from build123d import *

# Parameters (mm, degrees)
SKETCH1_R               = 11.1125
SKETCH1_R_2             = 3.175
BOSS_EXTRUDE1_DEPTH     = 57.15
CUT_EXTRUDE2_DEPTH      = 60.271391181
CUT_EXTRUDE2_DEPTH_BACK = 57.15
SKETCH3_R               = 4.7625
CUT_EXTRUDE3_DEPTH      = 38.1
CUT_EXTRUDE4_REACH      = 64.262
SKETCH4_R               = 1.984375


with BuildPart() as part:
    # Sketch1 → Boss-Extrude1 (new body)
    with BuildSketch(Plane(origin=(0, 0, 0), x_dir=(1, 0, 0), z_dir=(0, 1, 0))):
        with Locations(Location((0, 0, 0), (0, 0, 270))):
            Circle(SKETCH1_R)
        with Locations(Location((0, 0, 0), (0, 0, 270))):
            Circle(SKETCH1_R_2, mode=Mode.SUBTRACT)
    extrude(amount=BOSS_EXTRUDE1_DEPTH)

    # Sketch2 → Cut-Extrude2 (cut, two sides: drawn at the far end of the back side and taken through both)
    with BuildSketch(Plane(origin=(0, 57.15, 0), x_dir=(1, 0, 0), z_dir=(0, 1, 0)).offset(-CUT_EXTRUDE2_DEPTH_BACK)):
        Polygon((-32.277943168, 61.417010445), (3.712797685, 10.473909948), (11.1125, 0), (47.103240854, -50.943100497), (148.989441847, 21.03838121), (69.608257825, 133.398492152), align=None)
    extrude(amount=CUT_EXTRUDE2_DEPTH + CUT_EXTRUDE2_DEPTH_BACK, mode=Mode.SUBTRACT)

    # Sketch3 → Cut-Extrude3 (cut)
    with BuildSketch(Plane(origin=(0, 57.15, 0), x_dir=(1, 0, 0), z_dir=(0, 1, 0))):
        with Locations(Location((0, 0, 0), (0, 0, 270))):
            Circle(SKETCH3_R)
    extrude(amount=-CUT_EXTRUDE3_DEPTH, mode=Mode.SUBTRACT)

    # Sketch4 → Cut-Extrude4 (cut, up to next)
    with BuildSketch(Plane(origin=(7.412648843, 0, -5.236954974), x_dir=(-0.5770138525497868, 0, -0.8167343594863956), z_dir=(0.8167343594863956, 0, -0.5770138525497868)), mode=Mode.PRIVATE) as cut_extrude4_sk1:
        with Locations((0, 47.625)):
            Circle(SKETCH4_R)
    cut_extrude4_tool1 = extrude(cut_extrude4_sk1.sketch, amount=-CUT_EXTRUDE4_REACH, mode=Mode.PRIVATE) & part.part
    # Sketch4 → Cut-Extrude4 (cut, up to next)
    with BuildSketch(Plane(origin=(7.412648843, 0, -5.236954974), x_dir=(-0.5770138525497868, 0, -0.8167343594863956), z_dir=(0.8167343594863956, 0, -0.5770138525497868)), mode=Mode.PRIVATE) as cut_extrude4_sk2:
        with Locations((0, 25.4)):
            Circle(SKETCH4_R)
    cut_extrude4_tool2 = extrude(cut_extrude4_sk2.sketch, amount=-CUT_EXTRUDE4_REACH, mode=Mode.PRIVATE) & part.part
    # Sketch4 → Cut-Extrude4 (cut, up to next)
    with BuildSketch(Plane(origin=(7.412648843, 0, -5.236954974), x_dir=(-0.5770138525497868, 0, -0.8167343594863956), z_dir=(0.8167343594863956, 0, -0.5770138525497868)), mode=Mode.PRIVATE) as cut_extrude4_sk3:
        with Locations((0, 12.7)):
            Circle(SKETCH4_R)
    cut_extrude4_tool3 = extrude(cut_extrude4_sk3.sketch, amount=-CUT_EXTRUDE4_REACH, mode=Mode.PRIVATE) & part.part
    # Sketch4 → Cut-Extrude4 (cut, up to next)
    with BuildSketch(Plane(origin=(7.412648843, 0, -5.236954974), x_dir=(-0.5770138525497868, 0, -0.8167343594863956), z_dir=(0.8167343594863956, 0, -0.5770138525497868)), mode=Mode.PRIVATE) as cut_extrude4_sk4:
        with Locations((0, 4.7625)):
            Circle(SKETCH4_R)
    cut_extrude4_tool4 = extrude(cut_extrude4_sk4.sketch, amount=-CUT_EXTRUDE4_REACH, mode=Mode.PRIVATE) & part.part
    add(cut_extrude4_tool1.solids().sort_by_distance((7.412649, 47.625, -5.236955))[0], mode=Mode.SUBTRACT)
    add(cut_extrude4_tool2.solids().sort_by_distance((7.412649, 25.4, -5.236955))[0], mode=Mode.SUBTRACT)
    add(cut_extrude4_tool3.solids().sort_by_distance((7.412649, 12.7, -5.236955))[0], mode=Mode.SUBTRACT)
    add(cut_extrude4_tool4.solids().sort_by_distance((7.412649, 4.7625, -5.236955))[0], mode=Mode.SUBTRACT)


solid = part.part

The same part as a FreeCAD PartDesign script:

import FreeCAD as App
import Part
import Sketcher
Q = App.Units.Quantity


def add_polygon(sketch, points):
    """Adds a closed chain of lines whose ends are joined by coincident constraints."""
    first, n = sketch.GeometryCount, len(points)
    for a, b in zip(points, points[1:] + points[:1]):
        sketch.addGeometry(Part.LineSegment(App.Vector(*a, 0), App.Vector(*b, 0)), False)
    for i in range(n):
        sketch.addConstraint(Sketcher.Constraint("Coincident", first + i, 2, first + (i + 1) % n, 1))

doc = App.newDocument("Part")
params = doc.addObject("Spreadsheet::Sheet", "Params")
for row, (alias, value) in enumerate([
    ("sketch1_diameter", "0.25 in"),
    ("sketch1_diameter2", "0.875 in"),
    ("pad1_length", "2.25 in"),
    ("sketch3_diameter", "0.375 in"),
    ("pocket2_length", "1.5 in"),
    ("sketch4_diameter", "0.15625 in"),
    ("pocket3_length", "4.746565 mm"),
    ("sketch5_diameter", "0.15625 in"),
    ("pocket4_length", "4.746565 mm"),
    ("sketch6_diameter", "0.15625 in"),
    ("sketch7_diameter", "0.15625 in"),
    ("pocket6_length", "6.597477 mm"),
], start=1):
    params.set(f"A{row}", alias)
    params.set(f"B{row}", "=" + value)
    params.setAlias(f"B{row}", alias)

body = doc.addObject("PartDesign::Body", "Body")

# Sketch on XZ plane
sketch1 = body.newObject("Sketcher::SketchObject", "Sketch")
sketch1.AttachmentSupport = (doc.getObject("XZ_Plane"), [""])
sketch1.MapMode = "FlatFace"
sketch1.addGeometry(Part.Circle(App.Vector(0, 0, 0), App.Vector(0, 0, 1), 11.1), False)
sketch1.addGeometry(Part.Circle(App.Vector(0, 0, 0), App.Vector(0, 0, 1), 3.2), False)
sketch1.addConstraint(Sketcher.Constraint("Coincident", 0, 3, -1, 1))
sketch1.addConstraint(Sketcher.Constraint("Coincident", 1, 3, -1, 1))
sketch1.addConstraint(Sketcher.Constraint("Diameter", 1, Q("0.25 in")))
sketch1.addConstraint(Sketcher.Constraint("Diameter", 0, Q("0.875 in")))
sketch1.setExpression("Constraints[2]", "Params.sketch1_diameter")
sketch1.setExpression("Constraints[3]", "Params.sketch1_diameter2")
pad1 = body.newObject("PartDesign::Pad", "Pad")
pad1.Profile = sketch1
pad1.setExpression("Length", "Params.pad1_length")
pad1.Reversed = True

# Sketch on XZ plane
sketch2 = body.newObject("Sketcher::SketchObject", "Sketch001")
sketch2.AttachmentSupport = (doc.getObject("XZ_Plane"), [""])
sketch2.MapMode = "FlatFace"
sketch2.AttachmentOffset = App.Placement(App.Vector(0, 0, -2.25 * 25.4), App.Rotation())
add_polygon(sketch2, [(-32, -61), (4, -10), (11, 0), (47, 51), (149, -21), (70, -133)])  # lines 0-5
sketch2.addConstraint(Sketcher.Constraint("PointOnObject", 1, 2, -1))
sketch2.addConstraint(Sketcher.Constraint("Parallel", 0, 1))
sketch2.addConstraint(Sketcher.Constraint("Parallel", 1, 2))
sketch2.addConstraint(Sketcher.Constraint("Perpendicular", 2, 3))
sketch2.addConstraint(Sketcher.Constraint("Perpendicular", 3, 4))
sketch2.addConstraint(Sketcher.Constraint("Perpendicular", 4, 5))
sketch2.addConstraint(Sketcher.Constraint("Equal", 0, 2))
sketch2.addConstraint(Sketcher.Constraint("DistanceX", -1, 1, 1, 2, Q("0.4375 in")))
sketch2.addConstraint(Sketcher.Constraint("DistanceY", -1, 1, 2, 2, Q("50.9431 mm")))
sketch2.addConstraint(Sketcher.Constraint("DistanceX", 2, 2, 3, 2, Q("101.886201 mm")))
sketch2.addConstraint(Sketcher.Constraint("DistanceY", 0, 2, -1, 1, Q("10.47391 mm")))
sketch2.addConstraint(Sketcher.Constraint("DistanceX", -1, 1, 2, 2, Q("47.103241 mm")))
pocket1 = body.newObject("PartDesign::Pocket", "Pocket")
pocket1.Profile = sketch2
pocket1.Type = "ThroughAll"
pocket1.Midplane = True

# Sketch on XZ plane
sketch3 = body.newObject("Sketcher::SketchObject", "Sketch002")
sketch3.AttachmentSupport = (doc.getObject("XZ_Plane"), [""])
sketch3.MapMode = "FlatFace"
sketch3.AttachmentOffset = App.Placement(App.Vector(0, 0, -2.25 * 25.4), App.Rotation())
sketch3.addGeometry(Part.Circle(App.Vector(0, 0, 0), App.Vector(0, 0, 1), 4.8), False)
sketch3.addConstraint(Sketcher.Constraint("Coincident", 0, 3, -1, 1))
sketch3.addConstraint(Sketcher.Constraint("Diameter", 0, Q("0.375 in")))
sketch3.setExpression("Constraints[1]", "Params.sketch3_diameter")
pocket2 = body.newObject("PartDesign::Pocket", "Pocket001")
pocket2.Profile = sketch3
pocket2.setExpression("Length", "Params.pocket2_length")
pocket2.Reversed = True

# Sketch on an angled plane
sketch4 = body.newObject("Sketcher::SketchObject", "Sketch003")
sketch4.Placement = App.Placement(App.Vector(7.412649, 0, -5.236955), App.Rotation(App.Vector(-0.577013853, 0, -0.816734359), App.Vector(0, 1, 0), App.Vector(0.816734359, 0, -0.577013853), "ZXY"))
sketch4.addGeometry(Part.Circle(App.Vector(0, 47.6, 0), App.Vector(0, 0, 1), 2), False)
sketch4.addConstraint(Sketcher.Constraint("PointOnObject", 0, 3, -2))
sketch4.addConstraint(Sketcher.Constraint("Diameter", 0, Q("0.15625 in")))
sketch4.addConstraint(Sketcher.Constraint("DistanceY", -1, 1, 0, 3, Q("1.875 in")))
sketch4.setExpression("Constraints[1]", "Params.sketch4_diameter")
pocket3 = body.newObject("PartDesign::Pocket", "Pocket002")
pocket3.Profile = sketch4
pocket3.setExpression("Length", "Params.pocket3_length")

# Sketch on an angled plane
sketch5 = body.newObject("Sketcher::SketchObject", "Sketch004")
sketch5.Placement = App.Placement(App.Vector(7.412649, 0, -5.236955), App.Rotation(App.Vector(-0.577013853, 0, -0.816734359), App.Vector(0, 1, 0), App.Vector(0.816734359, 0, -0.577013853), "ZXY"))
sketch5.addGeometry(Part.Circle(App.Vector(0, 25.4, 0), App.Vector(0, 0, 1), 2), False)
sketch5.addConstraint(Sketcher.Constraint("PointOnObject", 0, 3, -2))
sketch5.addConstraint(Sketcher.Constraint("Diameter", 0, Q("0.15625 in")))
sketch5.addConstraint(Sketcher.Constraint("DistanceY", -1, 1, 0, 3, Q("1 in")))
sketch5.setExpression("Constraints[1]", "Params.sketch5_diameter")
pocket4 = body.newObject("PartDesign::Pocket", "Pocket003")
pocket4.Profile = sketch5
pocket4.setExpression("Length", "Params.pocket4_length")

# Sketch on an angled plane
sketch6 = body.newObject("Sketcher::SketchObject", "Sketch005")
sketch6.Placement = App.Placement(App.Vector(7.412649, 0, -5.236955), App.Rotation(App.Vector(-0.577013853, 0, -0.816734359), App.Vector(0, 1, 0), App.Vector(0.816734359, 0, -0.577013853), "ZXY"))
sketch6.addGeometry(Part.Circle(App.Vector(0, 12.7, 0), App.Vector(0, 0, 1), 2), False)
sketch6.addConstraint(Sketcher.Constraint("PointOnObject", 0, 3, -2))
sketch6.addConstraint(Sketcher.Constraint("Diameter", 0, Q("0.15625 in")))
sketch6.addConstraint(Sketcher.Constraint("DistanceY", -1, 1, 0, 3, Q("0.5 in")))
sketch6.setExpression("Constraints[1]", "Params.sketch6_diameter")
pocket5 = body.newObject("PartDesign::Pocket", "Pocket004")
pocket5.Profile = sketch6
pocket5.Type = "UpToFirst"

# Sketch on an angled plane
sketch7 = body.newObject("Sketcher::SketchObject", "Sketch006")
sketch7.Placement = App.Placement(App.Vector(7.412649, 0, -5.236955), App.Rotation(App.Vector(-0.577013853, 0, -0.816734359), App.Vector(0, 1, 0), App.Vector(0.816734359, 0, -0.577013853), "ZXY"))
sketch7.addGeometry(Part.Circle(App.Vector(0, 4.8, 0), App.Vector(0, 0, 1), 2), False)
sketch7.addConstraint(Sketcher.Constraint("PointOnObject", 0, 3, -2))
sketch7.addConstraint(Sketcher.Constraint("Diameter", 0, Q("0.15625 in")))
sketch7.addConstraint(Sketcher.Constraint("DistanceY", -1, 1, 0, 3, Q("0.1875 in")))
sketch7.setExpression("Constraints[1]", "Params.sketch7_diameter")
pocket6 = body.newObject("PartDesign::Pocket", "Pocket005")
pocket6.Profile = sketch7
pocket6.setExpression("Length", "Params.pocket6_length")

doc.recompute()
